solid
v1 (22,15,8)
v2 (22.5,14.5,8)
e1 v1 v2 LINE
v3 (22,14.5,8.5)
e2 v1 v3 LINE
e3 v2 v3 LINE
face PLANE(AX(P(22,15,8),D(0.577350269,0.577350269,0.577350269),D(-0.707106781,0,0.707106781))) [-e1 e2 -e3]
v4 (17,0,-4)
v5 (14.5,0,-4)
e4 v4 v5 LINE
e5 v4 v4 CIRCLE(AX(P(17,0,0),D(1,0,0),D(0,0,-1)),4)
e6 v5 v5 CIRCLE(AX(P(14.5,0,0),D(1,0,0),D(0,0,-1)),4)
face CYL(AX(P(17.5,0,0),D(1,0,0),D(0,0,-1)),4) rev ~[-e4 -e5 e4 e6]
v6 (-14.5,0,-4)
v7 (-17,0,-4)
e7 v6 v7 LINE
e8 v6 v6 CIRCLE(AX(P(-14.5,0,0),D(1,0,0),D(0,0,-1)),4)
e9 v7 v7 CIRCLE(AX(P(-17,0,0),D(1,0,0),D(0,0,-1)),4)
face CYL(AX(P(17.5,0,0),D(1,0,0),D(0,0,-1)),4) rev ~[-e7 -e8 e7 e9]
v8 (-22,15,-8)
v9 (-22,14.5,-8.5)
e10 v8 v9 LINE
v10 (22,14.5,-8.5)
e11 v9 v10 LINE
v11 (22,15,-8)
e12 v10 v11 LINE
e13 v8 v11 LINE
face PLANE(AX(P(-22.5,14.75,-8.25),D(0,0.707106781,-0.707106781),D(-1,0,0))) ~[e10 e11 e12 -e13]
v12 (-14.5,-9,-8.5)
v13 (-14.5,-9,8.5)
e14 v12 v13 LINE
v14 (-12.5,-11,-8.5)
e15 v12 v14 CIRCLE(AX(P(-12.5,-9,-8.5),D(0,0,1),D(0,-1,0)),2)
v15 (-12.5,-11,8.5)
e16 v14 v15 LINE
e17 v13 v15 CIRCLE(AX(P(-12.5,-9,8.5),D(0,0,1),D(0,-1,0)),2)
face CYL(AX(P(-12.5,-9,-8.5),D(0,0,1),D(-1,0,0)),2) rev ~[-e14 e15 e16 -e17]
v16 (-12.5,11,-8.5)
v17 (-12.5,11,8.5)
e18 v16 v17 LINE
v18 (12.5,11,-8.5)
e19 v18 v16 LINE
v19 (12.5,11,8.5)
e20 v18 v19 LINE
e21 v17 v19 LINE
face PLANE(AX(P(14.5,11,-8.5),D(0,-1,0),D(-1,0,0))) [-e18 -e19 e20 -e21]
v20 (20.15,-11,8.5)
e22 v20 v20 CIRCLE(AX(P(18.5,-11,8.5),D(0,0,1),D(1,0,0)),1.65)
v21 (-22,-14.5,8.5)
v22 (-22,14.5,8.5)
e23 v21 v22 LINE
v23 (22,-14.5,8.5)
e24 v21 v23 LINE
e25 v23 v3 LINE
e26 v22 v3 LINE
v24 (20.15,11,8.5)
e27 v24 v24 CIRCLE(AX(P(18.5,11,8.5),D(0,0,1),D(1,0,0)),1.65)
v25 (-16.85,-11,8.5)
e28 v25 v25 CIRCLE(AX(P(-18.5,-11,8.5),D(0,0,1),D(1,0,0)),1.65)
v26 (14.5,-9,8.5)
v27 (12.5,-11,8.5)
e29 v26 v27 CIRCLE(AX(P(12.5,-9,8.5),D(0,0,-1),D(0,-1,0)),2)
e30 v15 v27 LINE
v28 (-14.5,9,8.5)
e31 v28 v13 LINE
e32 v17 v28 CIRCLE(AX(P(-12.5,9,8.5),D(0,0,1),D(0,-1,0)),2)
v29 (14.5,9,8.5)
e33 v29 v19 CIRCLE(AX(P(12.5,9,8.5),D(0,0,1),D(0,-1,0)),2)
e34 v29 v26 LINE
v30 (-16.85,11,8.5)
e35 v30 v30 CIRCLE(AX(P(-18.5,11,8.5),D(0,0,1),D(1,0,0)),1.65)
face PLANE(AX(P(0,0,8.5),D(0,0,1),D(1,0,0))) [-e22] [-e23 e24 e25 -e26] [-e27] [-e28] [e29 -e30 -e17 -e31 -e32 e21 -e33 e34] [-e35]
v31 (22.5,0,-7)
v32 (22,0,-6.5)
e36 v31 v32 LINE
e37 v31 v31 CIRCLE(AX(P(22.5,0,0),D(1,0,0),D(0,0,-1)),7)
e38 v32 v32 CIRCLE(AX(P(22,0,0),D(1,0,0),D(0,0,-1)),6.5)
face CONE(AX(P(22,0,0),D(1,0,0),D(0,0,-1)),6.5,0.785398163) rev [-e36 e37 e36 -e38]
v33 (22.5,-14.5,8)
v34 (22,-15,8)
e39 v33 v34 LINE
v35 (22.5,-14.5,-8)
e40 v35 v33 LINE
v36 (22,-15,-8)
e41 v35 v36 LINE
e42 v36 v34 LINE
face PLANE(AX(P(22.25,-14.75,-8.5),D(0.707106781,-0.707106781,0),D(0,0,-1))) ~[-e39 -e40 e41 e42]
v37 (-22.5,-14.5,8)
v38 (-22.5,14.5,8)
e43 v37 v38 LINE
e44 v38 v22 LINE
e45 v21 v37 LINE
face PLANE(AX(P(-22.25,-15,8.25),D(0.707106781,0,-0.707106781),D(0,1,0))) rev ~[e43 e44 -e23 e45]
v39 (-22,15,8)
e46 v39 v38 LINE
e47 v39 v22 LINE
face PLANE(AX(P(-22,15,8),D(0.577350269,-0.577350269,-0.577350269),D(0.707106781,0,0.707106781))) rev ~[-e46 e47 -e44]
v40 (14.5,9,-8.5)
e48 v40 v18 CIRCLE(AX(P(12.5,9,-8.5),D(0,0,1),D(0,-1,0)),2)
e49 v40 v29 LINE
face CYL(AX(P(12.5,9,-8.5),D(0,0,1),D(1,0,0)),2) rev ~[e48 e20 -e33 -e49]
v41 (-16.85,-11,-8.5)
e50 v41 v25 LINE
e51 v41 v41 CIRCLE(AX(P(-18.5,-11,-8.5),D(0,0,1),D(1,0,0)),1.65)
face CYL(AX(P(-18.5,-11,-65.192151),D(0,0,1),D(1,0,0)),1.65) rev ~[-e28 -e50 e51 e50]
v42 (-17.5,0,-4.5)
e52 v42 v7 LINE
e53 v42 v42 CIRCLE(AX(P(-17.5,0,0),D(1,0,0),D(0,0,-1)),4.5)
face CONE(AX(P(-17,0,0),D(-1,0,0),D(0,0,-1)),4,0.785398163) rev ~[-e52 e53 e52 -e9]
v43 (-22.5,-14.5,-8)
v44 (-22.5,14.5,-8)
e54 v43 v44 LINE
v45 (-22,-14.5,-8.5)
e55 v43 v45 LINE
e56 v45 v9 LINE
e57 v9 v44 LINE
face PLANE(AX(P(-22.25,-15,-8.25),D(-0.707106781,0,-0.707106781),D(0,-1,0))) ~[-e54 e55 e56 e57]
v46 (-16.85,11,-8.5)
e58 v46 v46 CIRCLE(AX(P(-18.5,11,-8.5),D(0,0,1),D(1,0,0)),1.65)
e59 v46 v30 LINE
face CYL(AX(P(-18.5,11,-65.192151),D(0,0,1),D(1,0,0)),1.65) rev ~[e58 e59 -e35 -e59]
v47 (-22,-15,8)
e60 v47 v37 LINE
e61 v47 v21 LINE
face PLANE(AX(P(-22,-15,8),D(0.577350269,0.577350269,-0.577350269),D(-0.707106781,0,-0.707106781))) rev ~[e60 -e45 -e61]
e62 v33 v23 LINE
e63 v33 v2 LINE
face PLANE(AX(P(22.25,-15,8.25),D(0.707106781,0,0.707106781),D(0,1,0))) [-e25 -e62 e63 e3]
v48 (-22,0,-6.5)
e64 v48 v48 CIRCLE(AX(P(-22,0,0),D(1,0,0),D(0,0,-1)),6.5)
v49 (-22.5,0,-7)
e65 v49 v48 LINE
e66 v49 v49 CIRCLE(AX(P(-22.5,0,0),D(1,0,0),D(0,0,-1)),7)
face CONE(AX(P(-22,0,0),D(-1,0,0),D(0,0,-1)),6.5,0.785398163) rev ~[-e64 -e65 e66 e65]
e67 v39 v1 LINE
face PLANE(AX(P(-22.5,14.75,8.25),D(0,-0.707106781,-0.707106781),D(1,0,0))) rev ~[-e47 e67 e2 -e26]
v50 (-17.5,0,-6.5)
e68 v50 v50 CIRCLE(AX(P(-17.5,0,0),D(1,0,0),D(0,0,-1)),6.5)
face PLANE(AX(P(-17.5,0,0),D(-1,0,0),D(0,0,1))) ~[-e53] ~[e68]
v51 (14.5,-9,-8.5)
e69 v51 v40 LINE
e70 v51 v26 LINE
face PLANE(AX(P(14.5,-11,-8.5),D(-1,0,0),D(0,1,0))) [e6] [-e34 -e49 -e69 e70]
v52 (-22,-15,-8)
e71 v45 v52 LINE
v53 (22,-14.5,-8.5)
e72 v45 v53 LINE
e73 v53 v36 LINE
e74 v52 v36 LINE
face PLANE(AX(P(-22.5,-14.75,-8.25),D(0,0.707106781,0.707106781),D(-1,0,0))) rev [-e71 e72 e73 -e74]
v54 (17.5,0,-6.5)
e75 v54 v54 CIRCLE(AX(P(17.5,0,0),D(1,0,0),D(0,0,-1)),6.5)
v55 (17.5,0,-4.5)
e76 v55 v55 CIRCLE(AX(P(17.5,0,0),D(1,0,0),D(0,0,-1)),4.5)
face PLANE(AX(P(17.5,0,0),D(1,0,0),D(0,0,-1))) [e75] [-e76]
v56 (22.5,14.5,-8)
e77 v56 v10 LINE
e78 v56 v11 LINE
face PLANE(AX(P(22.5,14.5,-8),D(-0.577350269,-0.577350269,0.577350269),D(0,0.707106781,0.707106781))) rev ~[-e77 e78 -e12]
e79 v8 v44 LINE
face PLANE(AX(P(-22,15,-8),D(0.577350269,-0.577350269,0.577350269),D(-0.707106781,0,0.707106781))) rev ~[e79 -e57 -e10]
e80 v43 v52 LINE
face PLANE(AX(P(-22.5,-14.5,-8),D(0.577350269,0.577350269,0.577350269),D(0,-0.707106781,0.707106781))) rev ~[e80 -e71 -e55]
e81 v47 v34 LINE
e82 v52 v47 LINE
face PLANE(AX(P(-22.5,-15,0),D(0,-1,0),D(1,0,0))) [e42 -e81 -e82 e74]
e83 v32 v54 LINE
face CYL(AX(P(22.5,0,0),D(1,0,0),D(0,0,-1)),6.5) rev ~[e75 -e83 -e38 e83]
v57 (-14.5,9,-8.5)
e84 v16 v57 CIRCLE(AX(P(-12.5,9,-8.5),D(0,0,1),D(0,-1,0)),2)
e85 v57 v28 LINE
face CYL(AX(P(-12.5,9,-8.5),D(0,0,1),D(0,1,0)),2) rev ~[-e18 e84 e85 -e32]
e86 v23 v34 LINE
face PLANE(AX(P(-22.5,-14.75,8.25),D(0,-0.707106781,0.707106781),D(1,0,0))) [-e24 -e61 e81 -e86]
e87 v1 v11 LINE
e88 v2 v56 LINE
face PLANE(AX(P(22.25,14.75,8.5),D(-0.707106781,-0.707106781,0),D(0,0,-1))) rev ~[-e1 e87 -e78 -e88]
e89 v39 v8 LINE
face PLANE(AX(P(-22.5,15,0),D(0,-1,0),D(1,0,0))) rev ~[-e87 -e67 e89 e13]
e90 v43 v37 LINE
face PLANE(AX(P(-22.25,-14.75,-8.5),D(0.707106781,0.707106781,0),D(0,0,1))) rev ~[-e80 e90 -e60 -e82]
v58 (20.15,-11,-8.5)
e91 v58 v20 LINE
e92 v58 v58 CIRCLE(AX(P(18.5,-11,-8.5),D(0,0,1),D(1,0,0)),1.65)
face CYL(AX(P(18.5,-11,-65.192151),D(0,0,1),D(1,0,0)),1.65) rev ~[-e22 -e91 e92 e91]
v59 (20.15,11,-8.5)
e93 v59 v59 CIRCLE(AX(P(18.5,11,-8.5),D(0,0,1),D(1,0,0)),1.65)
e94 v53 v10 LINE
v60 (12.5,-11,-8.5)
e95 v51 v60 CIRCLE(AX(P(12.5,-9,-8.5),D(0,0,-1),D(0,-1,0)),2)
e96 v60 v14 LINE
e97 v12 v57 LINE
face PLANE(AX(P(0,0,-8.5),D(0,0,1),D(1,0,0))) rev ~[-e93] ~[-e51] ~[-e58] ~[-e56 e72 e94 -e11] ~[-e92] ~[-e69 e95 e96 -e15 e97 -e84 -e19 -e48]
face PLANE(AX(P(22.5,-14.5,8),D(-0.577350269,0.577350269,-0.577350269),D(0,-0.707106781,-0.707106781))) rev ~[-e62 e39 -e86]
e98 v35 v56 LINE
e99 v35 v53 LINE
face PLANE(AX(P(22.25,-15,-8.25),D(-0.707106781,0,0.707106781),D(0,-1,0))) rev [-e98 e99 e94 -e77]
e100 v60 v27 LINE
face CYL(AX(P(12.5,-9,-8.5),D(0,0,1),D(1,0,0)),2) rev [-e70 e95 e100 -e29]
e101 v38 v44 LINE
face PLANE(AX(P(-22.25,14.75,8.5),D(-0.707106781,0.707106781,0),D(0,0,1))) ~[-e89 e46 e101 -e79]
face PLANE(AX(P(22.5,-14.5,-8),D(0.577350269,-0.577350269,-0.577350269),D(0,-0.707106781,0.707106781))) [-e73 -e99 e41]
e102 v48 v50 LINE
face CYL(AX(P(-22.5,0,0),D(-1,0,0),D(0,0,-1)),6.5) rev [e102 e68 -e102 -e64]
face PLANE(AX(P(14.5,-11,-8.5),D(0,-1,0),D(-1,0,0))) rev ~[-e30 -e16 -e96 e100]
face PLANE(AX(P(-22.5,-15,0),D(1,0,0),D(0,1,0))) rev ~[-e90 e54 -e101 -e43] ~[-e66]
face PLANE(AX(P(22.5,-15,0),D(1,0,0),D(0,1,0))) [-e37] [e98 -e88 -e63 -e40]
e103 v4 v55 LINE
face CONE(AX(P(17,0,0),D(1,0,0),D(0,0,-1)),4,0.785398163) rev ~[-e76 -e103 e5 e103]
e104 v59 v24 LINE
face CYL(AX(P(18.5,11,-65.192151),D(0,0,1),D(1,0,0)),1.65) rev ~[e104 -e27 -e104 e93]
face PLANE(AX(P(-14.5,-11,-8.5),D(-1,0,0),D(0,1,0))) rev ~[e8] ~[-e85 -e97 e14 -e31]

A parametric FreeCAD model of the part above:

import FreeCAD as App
import Part
import Sketcher


def edges_at(feature, points):
    """Names of the edges that pass closest to the given points."""
    edges = feature.Shape.Edges
    near = lambda p: min(range(len(edges)), key=lambda i: edges[i].distToShape(Part.Vertex(*p))[0])
    return sorted({f"Edge{near(p) + 1}" for p in points})


def add_polygon(sketch, points):
    """Adds a closed chain of lines whose ends are joined by coincident constraints."""
    first, n = sketch.GeometryCount, len(points)
    for a, b in zip(points, points[1:] + points[:1]):
        sketch.addGeometry(Part.LineSegment(App.Vector(*a, 0), App.Vector(*b, 0)), False)
    for i in range(n):
        sketch.addConstraint(Sketcher.Constraint("Coincident", first + i, 2, first + (i + 1) % n, 1))

doc = App.newDocument("Part")
body = doc.addObject("PartDesign::Body", "Body")

sketch1 = doc.addObject("Sketcher::SketchObject", "Sketch")
body.addObject(sketch1)
sketch1.AttachmentSupport = (doc.XY_Plane, [""])
sketch1.MapMode = "FlatFace"
add_polygon(sketch1, [(-22.5, 15), (-22.5, -15), (22.5, -15), (22.5, 15)])
sketch1.addConstraint(Sketcher.Constraint("Vertical", 0))
sketch1.addConstraint(Sketcher.Constraint("Horizontal", 1))
sketch1.addConstraint(Sketcher.Constraint("Vertical", 2))
sketch1.addConstraint(Sketcher.Constraint("Horizontal", 3))
sketch1.addConstraint(Sketcher.Constraint("Symmetric", 0, 2, 2, 2, -1, 1))
sketch1.addConstraint(Sketcher.Constraint("DistanceX", 1, 1, 1, 2, 45.0))
sketch1.addConstraint(Sketcher.Constraint("DistanceY", 0, 2, 0, 1, 30.0))
pad1 = doc.addObject("PartDesign::Pad", "Pad")
body.addObject(pad1)
pad1.Profile = sketch1
pad1.Length = 17
pad1.Midplane = True

sketch2 = doc.addObject("Sketcher::SketchObject", "Sketch001")
body.addObject(sketch2)
sketch2.AttachmentSupport = (doc.YZ_Plane, [""])
sketch2.MapMode = "FlatFace"
sketch2.AttachmentOffset = App.Placement(App.Vector(0, 0, 22.5), App.Rotation())
sketch2.addGeometry(Part.Circle(App.Vector(0, 0, 0), App.Vector(0, 0, 1), 6.5), False)
sketch2.addConstraint(Sketcher.Constraint("Coincident", 0, 3, -1, 1))
sketch2.addConstraint(Sketcher.Constraint("Diameter", 0, 13.0))
pocket1 = doc.addObject("PartDesign::Pocket", "Pocket")
body.addObject(pocket1)
pocket1.Profile = sketch2
pocket1.Length = 5
doc.recompute()

mirrored = doc.addObject("PartDesign::Mirrored", "Mirrored")
body.addObject(mirrored)
mirrored.Originals = [pocket1]
mirrored.MirrorPlane = (doc.YZ_Plane, [""])
body.Tip = mirrored

sketch3 = doc.addObject("Sketcher::SketchObject", "Sketch002")
body.addObject(sketch3)
sketch3.AttachmentSupport = (doc.YZ_Plane, [""])
sketch3.MapMode = "FlatFace"
sketch3.AttachmentOffset = App.Placement(App.Vector(0, 0, 17.5), App.Rotation())
sketch3.addGeometry(Part.Circle(App.Vector(0, 0, 0), App.Vector(0, 0, 1), 4), False)
sketch3.addConstraint(Sketcher.Constraint("Coincident", 0, 3, -1, 1))
sketch3.addConstraint(Sketcher.Constraint("Diameter", 0, 8.0))
pocket2 = doc.addObject("PartDesign::Pocket", "Pocket001")
body.addObject(pocket2)
pocket2.Profile = sketch3
pocket2.Length = 53
doc.recompute()

chamfer = doc.addObject("PartDesign::Chamfer", "Chamfer")
body.addObject(chamfer)
chamfer.Base = (pocket2, edges_at(pocket2, [
    (22.5, 0, 6.5),
    (-22.5, 0, 6.5),
    (-17.5, 0, 4),
    (17.5, 0, 4),
]))
chamfer.Size = 0.5

sketch4 = doc.addObject("Sketcher::SketchObject", "Sketch003")
body.addObject(sketch4)
sketch4.AttachmentSupport = (doc.XY_Plane, [""])
sketch4.MapMode = "FlatFace"
sketch4.AttachmentOffset = App.Placement(App.Vector(0, 0, -8.5), App.Rotation())
sketch4.addGeometry(Part.Circle(App.Vector(18.5, 11, 0), App.Vector(0, 0, 1), 1.65), False)
sketch4.addGeometry(Part.Circle(App.Vector(-18.5, 11, 0), App.Vector(0, 0, 1), 1.65), False)
sketch4.addGeometry(Part.Circle(App.Vector(18.5, -11, 0), App.Vector(0, 0, 1), 1.65), False)
sketch4.addGeometry(Part.Circle(App.Vector(-18.5, -11, 0), App.Vector(0, 0, 1), 1.65), False)
sketch4.addConstraint(Sketcher.Constraint("Equal", 0, 1))
sketch4.addConstraint(Sketcher.Constraint("Equal", 1, 2))
sketch4.addConstraint(Sketcher.Constraint("Equal", 2, 3))
sketch4.addConstraint(Sketcher.Constraint("Symmetric", 1, 3, 2, 3, -1, 1))
sketch4.addConstraint(Sketcher.Constraint("Symmetric", 0, 3, 3, 3, -1, 1))
sketch4.addConstraint(Sketcher.Constraint("Symmetric", 0, 3, 1, 3, -2))
sketch4.addConstraint(Sketcher.Constraint("Diameter", 0, 3.3))
sketch4.addConstraint(Sketcher.Constraint("DistanceY", -1, 1, 0, 3, 11.0))
sketch4.addConstraint(Sketcher.Constraint("DistanceX", 1, 3, 0, 3, 37.0))
doc.recompute()
hole = doc.addObject("PartDesign::Hole", "Hole")
body.addObject(hole)
hole.Profile = sketch4
hole.ThreadType = "None"
hole.Diameter = 3.3
hole.DepthType = "ThroughAll"
hole.Reversed = True

sketch5 = doc.addObject("Sketcher::SketchObject", "Sketch004")
body.addObject(sketch5)
sketch5.AttachmentSupport = (doc.XY_Plane, [""])
sketch5.MapMode = "FlatFace"
sketch5.AttachmentOffset = App.Placement(App.Vector(0, 0, -8.5), App.Rotation())
add_polygon(sketch5, [(14.5, 11), (14.5, -11), (-14.5, -11), (-14.5, 11)])
sketch5.addConstraint(Sketcher.Constraint("Vertical", 0))
sketch5.addConstraint(Sketcher.Constraint("Horizontal", 1))
sketch5.addConstraint(Sketcher.Constraint("Vertical", 2))
sketch5.addConstraint(Sketcher.Constraint("Horizontal", 3))
sketch5.addConstraint(Sketcher.Constraint("Symmetric", 0, 2, 2, 2, -1, 1))
sketch5.addConstraint(Sketcher.Constraint("DistanceX", 1, 2, 1, 1, 29.0))
sketch5.addConstraint(Sketcher.Constraint("DistanceY", 0, 2, 0, 1, 22.0))
pocket3 = doc.addObject("PartDesign::Pocket", "Pocket002")
body.addObject(pocket3)
pocket3.Profile = sketch5
pocket3.Length = 53
pocket3.Reversed = True
doc.recompute()

fillet = doc.addObject("PartDesign::Fillet", "Fillet")
body.addObject(fillet)
fillet.Base = (pocket3, edges_at(pocket3, [
    (-14.5, -11, 0),
    (14.5, 11, 0),
    (-14.5, 11, 0),
    (14.5, -11, 0),
]))
fillet.Radius = 2
doc.recompute()

chamfer2 = doc.addObject("PartDesign::Chamfer", "Chamfer001")
body.addObject(chamfer2)
chamfer2.Base = (fillet, edges_at(fillet, [
    (-22.5, 0, 8.5),
    (0, -15, 8.5),
    (22.5, 0, 8.5),
    (0, -15, -8.5),
    (-22.5, 0, -8.5),
    (0, 15, -8.5),
    (22.5, 0, -8.5),
    (22.5, -15, 0),
    (-22.5, -15, 0),
    (-22.5, 15, 0),
    (22.5, 15, 0),
    (0, 15, 8.5),
]))
chamfer2.Size = 0.5

doc.recompute()
